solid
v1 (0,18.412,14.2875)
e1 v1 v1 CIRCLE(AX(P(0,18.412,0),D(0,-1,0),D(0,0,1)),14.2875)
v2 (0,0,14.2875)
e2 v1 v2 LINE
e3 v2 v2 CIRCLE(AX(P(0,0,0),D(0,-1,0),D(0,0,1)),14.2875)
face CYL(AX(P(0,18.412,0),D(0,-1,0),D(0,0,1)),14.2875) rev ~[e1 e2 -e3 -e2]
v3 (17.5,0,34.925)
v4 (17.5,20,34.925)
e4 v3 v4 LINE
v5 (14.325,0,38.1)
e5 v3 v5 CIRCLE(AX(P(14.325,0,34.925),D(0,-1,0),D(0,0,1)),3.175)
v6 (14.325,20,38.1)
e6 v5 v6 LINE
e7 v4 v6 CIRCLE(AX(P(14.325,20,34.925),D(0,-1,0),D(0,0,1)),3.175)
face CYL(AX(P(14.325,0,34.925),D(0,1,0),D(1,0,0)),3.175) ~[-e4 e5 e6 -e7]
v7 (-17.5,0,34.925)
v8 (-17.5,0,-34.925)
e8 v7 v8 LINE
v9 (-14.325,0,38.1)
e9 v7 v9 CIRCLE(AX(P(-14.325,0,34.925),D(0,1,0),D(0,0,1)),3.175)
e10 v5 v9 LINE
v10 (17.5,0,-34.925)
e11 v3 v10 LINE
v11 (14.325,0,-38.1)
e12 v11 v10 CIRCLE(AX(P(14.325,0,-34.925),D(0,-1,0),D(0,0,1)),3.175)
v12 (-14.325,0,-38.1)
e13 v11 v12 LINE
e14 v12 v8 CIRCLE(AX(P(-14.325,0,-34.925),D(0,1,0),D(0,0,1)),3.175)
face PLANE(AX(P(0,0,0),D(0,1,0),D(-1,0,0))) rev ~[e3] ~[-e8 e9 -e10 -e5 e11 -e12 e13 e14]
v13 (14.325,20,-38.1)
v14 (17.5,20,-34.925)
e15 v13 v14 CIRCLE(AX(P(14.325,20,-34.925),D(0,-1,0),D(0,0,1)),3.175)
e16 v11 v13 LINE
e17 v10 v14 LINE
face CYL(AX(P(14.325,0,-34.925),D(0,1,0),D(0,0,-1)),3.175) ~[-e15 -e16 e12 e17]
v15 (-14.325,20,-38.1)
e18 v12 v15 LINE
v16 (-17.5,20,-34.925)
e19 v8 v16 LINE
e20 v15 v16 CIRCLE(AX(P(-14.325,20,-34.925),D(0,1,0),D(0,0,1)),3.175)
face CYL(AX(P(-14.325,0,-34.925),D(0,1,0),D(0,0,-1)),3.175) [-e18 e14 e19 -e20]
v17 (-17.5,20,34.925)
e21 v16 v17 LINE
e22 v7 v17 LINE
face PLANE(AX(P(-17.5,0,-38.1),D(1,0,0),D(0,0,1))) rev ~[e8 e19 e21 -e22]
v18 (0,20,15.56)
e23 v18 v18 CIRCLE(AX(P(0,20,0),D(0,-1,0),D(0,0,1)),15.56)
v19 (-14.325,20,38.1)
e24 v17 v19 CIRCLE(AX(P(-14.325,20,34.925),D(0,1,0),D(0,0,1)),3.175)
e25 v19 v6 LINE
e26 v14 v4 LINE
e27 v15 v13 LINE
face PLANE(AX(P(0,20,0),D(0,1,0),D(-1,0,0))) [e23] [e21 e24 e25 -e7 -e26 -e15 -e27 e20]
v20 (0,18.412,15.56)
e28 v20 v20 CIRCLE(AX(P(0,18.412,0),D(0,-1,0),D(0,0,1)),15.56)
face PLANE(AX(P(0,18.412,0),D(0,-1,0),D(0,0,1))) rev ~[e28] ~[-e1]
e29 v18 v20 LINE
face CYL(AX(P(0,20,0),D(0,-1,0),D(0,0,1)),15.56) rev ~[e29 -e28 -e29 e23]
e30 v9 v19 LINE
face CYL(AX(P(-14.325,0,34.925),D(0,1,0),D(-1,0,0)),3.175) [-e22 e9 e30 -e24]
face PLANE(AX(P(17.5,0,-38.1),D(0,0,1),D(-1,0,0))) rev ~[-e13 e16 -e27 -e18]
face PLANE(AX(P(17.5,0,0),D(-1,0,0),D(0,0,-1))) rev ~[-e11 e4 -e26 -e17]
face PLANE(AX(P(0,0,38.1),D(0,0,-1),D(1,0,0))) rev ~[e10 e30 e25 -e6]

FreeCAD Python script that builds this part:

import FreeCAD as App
import Part
import Sketcher
Q = App.Units.Quantity


def edges_at(feature, points):
    """Names of the edges that pass closest to the given points."""
    edges = feature.Shape.Edges
    near = lambda p: min(range(len(edges)), key=lambda i: edges[i].distToShape(Part.Vertex(*p))[0])
    return sorted({f"Edge{near(p) + 1}" for p in points})

doc = App.newDocument("Part")
body = doc.addObject("PartDesign::Body", "Body")

# Sketch on XZ plane
sketch1 = doc.addObject("Sketcher::SketchObject", "Sketch")
body.addObject(sketch1)
sketch1.AttachmentSupport = (doc.XZ_Plane, [""])
sketch1.MapMode = "FlatFace"
sketch1.addGeometry([
    Part.LineSegment(App.Vector(18, -38, 0), App.Vector(-18, -38, 0)),
    Part.LineSegment(App.Vector(-18, -38, 0), App.Vector(-18, 38, 0)),
    Part.LineSegment(App.Vector(-18, 38, 0), App.Vector(18, 38, 0)),
    Part.LineSegment(App.Vector(18, 38, 0), App.Vector(18, -38, 0)),
], False)
sketch1.addConstraint([
    Sketcher.Constraint("Coincident", 0, 2, 1, 1),
    Sketcher.Constraint("Coincident", 1, 2, 2, 1),
    Sketcher.Constraint("Coincident", 2, 2, 3, 1),
    Sketcher.Constraint("Coincident", 3, 2, 0, 1),
    Sketcher.Constraint("Horizontal", 0),
    Sketcher.Constraint("Vertical", 1),
    Sketcher.Constraint("Horizontal", 2),
    Sketcher.Constraint("Vertical", 3),
    Sketcher.Constraint("Symmetric", 0, 2, 2, 2, -1, 1),
    Sketcher.Constraint("DistanceY", 1, 1, 1, 2, Q("3 in")),
    Sketcher.Constraint("DistanceX", 0, 2, 0, 1, Q("35 mm")),
])
pad1 = doc.addObject("PartDesign::Pad", "Pad")
body.addObject(pad1)
pad1.Profile = sketch1
pad1.Length = Q("0.7874016 in")
pad1.Reversed = True

# Sketch on XZ plane
sketch2 = doc.addObject("Sketcher::SketchObject", "Sketch001")
body.addObject(sketch2)
sketch2.AttachmentSupport = (doc.XZ_Plane, [""])
sketch2.MapMode = "FlatFace"
sketch2.AttachmentOffset = App.Placement(App.Vector(0, 0, -0.7874016 * 25.4), App.Rotation())
sketch2.addGeometry(Part.Circle(App.Vector(0, 0, 0), App.Vector(0, 0, 1), 14), False)
sketch2.addConstraint([
    Sketcher.Constraint("Coincident", 0, 3, -1, 1),
    Sketcher.Constraint("Diameter", 0, Q("1.125 in")),
])
doc.recompute()
hole = doc.addObject("PartDesign::Hole", "Hole")
body.addObject(hole)
hole.Profile = sketch2
hole.ThreadType = "None"
hole.Diameter = Q("1.125 in")
hole.DepthType = "ThroughAll"
hole.HoleCutType = "Counterbore"
hole.HoleCutDiameter = Q("1.2251969 in")
hole.HoleCutDepth = 1.588
hole.Reversed = True
doc.recompute()

fillet = doc.addObject("PartDesign::Fillet", "Fillet")
body.addObject(fillet)
fillet.Base = (hole, edges_at(hole, [
    (17.5, 10, 38.1),
    (17.5, 10, -38.1),
    (-17.5, 10, 38.1),
    (-17.5, 10, -38.1),
]))
fillet.Radius = Q("0.125 in")

doc.recompute()
